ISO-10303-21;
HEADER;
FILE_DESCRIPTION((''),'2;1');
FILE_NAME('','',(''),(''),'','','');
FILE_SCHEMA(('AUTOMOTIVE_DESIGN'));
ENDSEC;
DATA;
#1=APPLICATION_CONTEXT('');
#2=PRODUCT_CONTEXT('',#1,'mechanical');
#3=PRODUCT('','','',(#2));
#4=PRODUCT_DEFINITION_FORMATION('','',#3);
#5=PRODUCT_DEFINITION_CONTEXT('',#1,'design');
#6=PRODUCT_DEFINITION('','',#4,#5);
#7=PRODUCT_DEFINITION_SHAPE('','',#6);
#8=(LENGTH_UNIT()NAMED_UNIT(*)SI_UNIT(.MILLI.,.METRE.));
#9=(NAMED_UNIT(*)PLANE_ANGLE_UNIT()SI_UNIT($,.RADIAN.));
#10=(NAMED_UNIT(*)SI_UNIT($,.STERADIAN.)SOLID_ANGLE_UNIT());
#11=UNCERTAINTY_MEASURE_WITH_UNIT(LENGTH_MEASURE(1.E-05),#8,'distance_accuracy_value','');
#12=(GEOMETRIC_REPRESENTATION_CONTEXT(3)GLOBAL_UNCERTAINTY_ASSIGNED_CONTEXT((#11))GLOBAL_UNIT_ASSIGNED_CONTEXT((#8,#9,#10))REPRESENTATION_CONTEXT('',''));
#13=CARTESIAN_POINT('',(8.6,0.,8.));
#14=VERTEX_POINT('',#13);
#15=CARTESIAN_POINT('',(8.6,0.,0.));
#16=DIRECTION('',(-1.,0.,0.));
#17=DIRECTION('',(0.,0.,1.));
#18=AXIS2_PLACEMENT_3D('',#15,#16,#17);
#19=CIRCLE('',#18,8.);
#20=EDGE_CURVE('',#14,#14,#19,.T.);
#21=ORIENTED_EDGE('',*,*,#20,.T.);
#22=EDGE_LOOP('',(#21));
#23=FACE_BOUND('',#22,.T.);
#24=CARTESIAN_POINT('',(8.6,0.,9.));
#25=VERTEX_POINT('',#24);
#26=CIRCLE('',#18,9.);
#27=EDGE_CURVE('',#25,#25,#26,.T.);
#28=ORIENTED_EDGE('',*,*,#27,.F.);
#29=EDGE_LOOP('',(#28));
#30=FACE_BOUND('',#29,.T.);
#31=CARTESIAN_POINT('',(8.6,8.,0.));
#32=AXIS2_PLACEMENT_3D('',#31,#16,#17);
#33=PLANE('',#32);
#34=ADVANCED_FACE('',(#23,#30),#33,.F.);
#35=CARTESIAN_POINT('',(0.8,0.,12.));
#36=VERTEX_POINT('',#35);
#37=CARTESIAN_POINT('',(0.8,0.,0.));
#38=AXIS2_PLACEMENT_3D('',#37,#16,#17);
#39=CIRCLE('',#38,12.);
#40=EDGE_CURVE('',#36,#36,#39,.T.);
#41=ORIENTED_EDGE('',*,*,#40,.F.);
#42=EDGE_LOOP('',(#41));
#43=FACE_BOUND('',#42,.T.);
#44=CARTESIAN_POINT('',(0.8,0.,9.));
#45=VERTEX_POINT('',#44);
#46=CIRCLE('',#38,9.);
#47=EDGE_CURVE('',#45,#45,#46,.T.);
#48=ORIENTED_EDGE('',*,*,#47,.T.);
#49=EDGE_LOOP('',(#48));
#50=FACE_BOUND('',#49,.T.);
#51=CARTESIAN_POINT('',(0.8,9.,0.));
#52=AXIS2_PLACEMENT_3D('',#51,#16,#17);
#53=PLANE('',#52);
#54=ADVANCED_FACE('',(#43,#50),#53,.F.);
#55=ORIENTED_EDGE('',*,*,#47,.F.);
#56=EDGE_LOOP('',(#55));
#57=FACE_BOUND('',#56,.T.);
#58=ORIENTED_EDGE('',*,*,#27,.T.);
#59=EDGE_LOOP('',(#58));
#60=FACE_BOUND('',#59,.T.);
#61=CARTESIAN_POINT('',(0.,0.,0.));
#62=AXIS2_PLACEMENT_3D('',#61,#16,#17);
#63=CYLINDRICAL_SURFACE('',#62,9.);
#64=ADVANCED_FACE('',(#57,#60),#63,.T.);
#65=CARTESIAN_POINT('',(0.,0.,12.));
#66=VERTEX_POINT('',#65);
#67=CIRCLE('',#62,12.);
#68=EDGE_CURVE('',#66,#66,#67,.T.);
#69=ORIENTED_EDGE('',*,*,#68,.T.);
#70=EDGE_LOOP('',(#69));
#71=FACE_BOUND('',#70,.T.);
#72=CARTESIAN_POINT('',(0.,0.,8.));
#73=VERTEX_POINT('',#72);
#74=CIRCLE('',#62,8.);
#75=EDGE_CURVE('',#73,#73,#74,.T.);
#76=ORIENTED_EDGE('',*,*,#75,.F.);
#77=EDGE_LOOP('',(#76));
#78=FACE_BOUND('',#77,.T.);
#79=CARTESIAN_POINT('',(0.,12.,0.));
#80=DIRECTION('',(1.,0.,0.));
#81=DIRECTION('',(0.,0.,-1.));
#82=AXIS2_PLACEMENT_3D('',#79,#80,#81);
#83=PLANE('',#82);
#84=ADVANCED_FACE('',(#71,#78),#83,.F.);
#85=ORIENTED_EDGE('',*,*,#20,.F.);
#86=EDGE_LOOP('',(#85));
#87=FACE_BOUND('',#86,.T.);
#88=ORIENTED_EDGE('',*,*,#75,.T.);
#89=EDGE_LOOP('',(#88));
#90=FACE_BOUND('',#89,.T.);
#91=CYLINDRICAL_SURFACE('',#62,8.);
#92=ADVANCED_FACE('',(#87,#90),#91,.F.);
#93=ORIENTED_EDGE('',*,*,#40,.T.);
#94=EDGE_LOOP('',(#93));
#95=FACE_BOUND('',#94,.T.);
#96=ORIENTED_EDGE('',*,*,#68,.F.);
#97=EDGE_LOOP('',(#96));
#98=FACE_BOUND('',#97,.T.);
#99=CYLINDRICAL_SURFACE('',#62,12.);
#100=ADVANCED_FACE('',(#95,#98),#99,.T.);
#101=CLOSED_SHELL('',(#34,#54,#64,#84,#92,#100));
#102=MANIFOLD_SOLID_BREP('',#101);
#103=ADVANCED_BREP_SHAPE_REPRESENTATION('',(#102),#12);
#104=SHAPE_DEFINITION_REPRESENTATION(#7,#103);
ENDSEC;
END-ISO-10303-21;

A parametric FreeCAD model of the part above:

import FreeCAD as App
import Part
import Sketcher
from FreeCAD import Vector

doc = App.newDocument("Part")
body = doc.addObject("PartDesign::Body", "Body")

# Sketch on XY plane
sketch1 = body.newObject("Sketcher::SketchObject", "Sketch")
sketch1.AttachmentSupport = (doc.getObject("XY_Plane"), [""])
sketch1.MapMode = "FlatFace"
sketch1.addGeometry([
    Part.LineSegment(Vector(0, 8, 0), Vector(8.6, 8, 0)),  # 0
    Part.LineSegment(Vector(8.6, 8, 0), Vector(8.6, 9, 0)),  # 1
    Part.LineSegment(Vector(8.6, 9, 0), Vector(0.8, 9, 0)),  # 2
    Part.LineSegment(Vector(0.8, 9, 0), Vector(0.8, 12, 0)),  # 3
    Part.LineSegment(Vector(0.8, 12, 0), Vector(0, 12, 0)),  # 4
    Part.LineSegment(Vector(0, 12, 0), Vector(0, 8, 0)),  # 5
], False)
sketch1.addConstraint([
    Sketcher.Constraint("Coincident", 0, 2, 1, 1),
    Sketcher.Constraint("Coincident", 1, 2, 2, 1),
    Sketcher.Constraint("Coincident", 2, 2, 3, 1),
    Sketcher.Constraint("Coincident", 3, 2, 4, 1),
    Sketcher.Constraint("Coincident", 4, 2, 5, 1),
    Sketcher.Constraint("Coincident", 5, 2, 0, 1),
    Sketcher.Constraint("Horizontal", 0),
    Sketcher.Constraint("Vertical", 1),
    Sketcher.Constraint("Horizontal", 2),
    Sketcher.Constraint("Vertical", 3),
    Sketcher.Constraint("Horizontal", 4),
    Sketcher.Constraint("Vertical", 5),
    Sketcher.Constraint("PointOnObject", 4, 2, -2),
    Sketcher.Constraint("DistanceY", 1, 1, 1, 2, 1.0),
    Sketcher.Constraint("DistanceY", 3, 1, 3, 2, 3.0),
    Sketcher.Constraint("DistanceX", 0, 1, 0, 2, 8.6),
    Sketcher.Constraint("DistanceX", 2, 2, 2, 1, 7.8),
    Sketcher.Constraint("DistanceY", -1, 1, 0, 2, 8.0),
])
revolution = body.newObject("PartDesign::Revolution", "Revolution")
revolution.Profile = sketch1
revolution.ReferenceAxis = (sketch1, ["H_Axis"])
revolution.Angle = 360

doc.recompute()
